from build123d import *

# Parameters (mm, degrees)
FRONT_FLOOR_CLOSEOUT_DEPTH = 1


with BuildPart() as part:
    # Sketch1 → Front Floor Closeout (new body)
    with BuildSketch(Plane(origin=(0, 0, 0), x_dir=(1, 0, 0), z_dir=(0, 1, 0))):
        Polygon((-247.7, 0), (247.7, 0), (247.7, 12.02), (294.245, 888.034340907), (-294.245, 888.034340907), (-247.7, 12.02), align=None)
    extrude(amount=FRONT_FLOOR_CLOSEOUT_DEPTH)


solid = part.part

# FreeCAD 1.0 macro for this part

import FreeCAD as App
import Part
import Sketcher

V = App.Vector
Q = App.Units.Quantity


def add_polygon(sketch, points):
    """Adds a closed chain of lines whose ends are joined by coincident constraints."""
    first, n = sketch.GeometryCount, len(points)
    for a, b in zip(points, points[1:] + points[:1]):
        sketch.addGeometry(Part.LineSegment(App.Vector(*a, 0), App.Vector(*b, 0)), False)
    for i in range(n):
        sketch.addConstraint(Sketcher.Constraint("Coincident", first + i, 2, first + (i + 1) % n, 1))

doc = App.newDocument("Part")
params = doc.addObject("Spreadsheet::Sheet", "Params")
for row, (alias, value) in enumerate([
    ("sketch1_width", "495.4 mm"),
    ("sketch1_width2", "588.49 mm"),
    ("sketch1_height", "12.02 mm"),
    ("sketch1_length", "877.25 mm"),
    ("pad1_length", "1 mm"),
], start=1):
    params.set(f"A{row}", alias)
    params.set(f"B{row}", "=" + value)
    params.setAlias(f"B{row}", alias)

body = doc.addObject("PartDesign::Body", "Body")

sketch1 = body.newObject("Sketcher::SketchObject", "Sketch")
sketch1.AttachmentSupport = (doc.getObject("XZ_Plane"), [""])
sketch1.MapMode = "FlatFace"
add_polygon(sketch1, [(-247.7, 0), (247.7, 0), (247.7, -12.02), (294.245, -888.034341), (-294.245, -888.034341), (-247.7, -12.02)])
sketch1.addConstraint(Sketcher.Constraint("Horizontal", 0))
sketch1.addConstraint(Sketcher.Constraint("Vertical", 1))
sketch1.addConstraint(Sketcher.Constraint("Horizontal", 3))
sketch1.addConstraint(Sketcher.Constraint("Vertical", 5))
sketch1.addConstraint(Sketcher.Constraint("Symmetric", 0, 2, 5, 2, -1, 1))
sketch1.addConstraint(Sketcher.Constraint("Horizontal", 1, 2, 4, 2))
sketch1.addConstraint(Sketcher.Constraint("Equal", 2, 4))
sketch1.addConstraint(Sketcher.Constraint("DistanceX", 0, 1, 0, 2, Q("495.4 mm")))
sketch1.addConstraint(Sketcher.Constraint("DistanceX", 3, 2, 3, 1, Q("588.49 mm")))
sketch1.addConstraint(Sketcher.Constraint("DistanceY", 1, 2, 1, 1, Q("12.02 mm")))
sketch1.addConstraint(Sketcher.Constraint("Distance", 2, Q("877.25 mm")))
sketch1.setExpression("Constraints[13]", "Params.sketch1_width")
sketch1.setExpression("Constraints[14]", "Params.sketch1_width2")
sketch1.setExpression("Constraints[15]", "Params.sketch1_height")
sketch1.setExpression("Constraints[16]", "Params.sketch1_length")
pad1 = body.newObject("PartDesign::Pad", "Pad")
pad1.Profile = sketch1
pad1.setExpression("Length", "Params.pad1_length")
pad1.Reversed = True

doc.recompute()
